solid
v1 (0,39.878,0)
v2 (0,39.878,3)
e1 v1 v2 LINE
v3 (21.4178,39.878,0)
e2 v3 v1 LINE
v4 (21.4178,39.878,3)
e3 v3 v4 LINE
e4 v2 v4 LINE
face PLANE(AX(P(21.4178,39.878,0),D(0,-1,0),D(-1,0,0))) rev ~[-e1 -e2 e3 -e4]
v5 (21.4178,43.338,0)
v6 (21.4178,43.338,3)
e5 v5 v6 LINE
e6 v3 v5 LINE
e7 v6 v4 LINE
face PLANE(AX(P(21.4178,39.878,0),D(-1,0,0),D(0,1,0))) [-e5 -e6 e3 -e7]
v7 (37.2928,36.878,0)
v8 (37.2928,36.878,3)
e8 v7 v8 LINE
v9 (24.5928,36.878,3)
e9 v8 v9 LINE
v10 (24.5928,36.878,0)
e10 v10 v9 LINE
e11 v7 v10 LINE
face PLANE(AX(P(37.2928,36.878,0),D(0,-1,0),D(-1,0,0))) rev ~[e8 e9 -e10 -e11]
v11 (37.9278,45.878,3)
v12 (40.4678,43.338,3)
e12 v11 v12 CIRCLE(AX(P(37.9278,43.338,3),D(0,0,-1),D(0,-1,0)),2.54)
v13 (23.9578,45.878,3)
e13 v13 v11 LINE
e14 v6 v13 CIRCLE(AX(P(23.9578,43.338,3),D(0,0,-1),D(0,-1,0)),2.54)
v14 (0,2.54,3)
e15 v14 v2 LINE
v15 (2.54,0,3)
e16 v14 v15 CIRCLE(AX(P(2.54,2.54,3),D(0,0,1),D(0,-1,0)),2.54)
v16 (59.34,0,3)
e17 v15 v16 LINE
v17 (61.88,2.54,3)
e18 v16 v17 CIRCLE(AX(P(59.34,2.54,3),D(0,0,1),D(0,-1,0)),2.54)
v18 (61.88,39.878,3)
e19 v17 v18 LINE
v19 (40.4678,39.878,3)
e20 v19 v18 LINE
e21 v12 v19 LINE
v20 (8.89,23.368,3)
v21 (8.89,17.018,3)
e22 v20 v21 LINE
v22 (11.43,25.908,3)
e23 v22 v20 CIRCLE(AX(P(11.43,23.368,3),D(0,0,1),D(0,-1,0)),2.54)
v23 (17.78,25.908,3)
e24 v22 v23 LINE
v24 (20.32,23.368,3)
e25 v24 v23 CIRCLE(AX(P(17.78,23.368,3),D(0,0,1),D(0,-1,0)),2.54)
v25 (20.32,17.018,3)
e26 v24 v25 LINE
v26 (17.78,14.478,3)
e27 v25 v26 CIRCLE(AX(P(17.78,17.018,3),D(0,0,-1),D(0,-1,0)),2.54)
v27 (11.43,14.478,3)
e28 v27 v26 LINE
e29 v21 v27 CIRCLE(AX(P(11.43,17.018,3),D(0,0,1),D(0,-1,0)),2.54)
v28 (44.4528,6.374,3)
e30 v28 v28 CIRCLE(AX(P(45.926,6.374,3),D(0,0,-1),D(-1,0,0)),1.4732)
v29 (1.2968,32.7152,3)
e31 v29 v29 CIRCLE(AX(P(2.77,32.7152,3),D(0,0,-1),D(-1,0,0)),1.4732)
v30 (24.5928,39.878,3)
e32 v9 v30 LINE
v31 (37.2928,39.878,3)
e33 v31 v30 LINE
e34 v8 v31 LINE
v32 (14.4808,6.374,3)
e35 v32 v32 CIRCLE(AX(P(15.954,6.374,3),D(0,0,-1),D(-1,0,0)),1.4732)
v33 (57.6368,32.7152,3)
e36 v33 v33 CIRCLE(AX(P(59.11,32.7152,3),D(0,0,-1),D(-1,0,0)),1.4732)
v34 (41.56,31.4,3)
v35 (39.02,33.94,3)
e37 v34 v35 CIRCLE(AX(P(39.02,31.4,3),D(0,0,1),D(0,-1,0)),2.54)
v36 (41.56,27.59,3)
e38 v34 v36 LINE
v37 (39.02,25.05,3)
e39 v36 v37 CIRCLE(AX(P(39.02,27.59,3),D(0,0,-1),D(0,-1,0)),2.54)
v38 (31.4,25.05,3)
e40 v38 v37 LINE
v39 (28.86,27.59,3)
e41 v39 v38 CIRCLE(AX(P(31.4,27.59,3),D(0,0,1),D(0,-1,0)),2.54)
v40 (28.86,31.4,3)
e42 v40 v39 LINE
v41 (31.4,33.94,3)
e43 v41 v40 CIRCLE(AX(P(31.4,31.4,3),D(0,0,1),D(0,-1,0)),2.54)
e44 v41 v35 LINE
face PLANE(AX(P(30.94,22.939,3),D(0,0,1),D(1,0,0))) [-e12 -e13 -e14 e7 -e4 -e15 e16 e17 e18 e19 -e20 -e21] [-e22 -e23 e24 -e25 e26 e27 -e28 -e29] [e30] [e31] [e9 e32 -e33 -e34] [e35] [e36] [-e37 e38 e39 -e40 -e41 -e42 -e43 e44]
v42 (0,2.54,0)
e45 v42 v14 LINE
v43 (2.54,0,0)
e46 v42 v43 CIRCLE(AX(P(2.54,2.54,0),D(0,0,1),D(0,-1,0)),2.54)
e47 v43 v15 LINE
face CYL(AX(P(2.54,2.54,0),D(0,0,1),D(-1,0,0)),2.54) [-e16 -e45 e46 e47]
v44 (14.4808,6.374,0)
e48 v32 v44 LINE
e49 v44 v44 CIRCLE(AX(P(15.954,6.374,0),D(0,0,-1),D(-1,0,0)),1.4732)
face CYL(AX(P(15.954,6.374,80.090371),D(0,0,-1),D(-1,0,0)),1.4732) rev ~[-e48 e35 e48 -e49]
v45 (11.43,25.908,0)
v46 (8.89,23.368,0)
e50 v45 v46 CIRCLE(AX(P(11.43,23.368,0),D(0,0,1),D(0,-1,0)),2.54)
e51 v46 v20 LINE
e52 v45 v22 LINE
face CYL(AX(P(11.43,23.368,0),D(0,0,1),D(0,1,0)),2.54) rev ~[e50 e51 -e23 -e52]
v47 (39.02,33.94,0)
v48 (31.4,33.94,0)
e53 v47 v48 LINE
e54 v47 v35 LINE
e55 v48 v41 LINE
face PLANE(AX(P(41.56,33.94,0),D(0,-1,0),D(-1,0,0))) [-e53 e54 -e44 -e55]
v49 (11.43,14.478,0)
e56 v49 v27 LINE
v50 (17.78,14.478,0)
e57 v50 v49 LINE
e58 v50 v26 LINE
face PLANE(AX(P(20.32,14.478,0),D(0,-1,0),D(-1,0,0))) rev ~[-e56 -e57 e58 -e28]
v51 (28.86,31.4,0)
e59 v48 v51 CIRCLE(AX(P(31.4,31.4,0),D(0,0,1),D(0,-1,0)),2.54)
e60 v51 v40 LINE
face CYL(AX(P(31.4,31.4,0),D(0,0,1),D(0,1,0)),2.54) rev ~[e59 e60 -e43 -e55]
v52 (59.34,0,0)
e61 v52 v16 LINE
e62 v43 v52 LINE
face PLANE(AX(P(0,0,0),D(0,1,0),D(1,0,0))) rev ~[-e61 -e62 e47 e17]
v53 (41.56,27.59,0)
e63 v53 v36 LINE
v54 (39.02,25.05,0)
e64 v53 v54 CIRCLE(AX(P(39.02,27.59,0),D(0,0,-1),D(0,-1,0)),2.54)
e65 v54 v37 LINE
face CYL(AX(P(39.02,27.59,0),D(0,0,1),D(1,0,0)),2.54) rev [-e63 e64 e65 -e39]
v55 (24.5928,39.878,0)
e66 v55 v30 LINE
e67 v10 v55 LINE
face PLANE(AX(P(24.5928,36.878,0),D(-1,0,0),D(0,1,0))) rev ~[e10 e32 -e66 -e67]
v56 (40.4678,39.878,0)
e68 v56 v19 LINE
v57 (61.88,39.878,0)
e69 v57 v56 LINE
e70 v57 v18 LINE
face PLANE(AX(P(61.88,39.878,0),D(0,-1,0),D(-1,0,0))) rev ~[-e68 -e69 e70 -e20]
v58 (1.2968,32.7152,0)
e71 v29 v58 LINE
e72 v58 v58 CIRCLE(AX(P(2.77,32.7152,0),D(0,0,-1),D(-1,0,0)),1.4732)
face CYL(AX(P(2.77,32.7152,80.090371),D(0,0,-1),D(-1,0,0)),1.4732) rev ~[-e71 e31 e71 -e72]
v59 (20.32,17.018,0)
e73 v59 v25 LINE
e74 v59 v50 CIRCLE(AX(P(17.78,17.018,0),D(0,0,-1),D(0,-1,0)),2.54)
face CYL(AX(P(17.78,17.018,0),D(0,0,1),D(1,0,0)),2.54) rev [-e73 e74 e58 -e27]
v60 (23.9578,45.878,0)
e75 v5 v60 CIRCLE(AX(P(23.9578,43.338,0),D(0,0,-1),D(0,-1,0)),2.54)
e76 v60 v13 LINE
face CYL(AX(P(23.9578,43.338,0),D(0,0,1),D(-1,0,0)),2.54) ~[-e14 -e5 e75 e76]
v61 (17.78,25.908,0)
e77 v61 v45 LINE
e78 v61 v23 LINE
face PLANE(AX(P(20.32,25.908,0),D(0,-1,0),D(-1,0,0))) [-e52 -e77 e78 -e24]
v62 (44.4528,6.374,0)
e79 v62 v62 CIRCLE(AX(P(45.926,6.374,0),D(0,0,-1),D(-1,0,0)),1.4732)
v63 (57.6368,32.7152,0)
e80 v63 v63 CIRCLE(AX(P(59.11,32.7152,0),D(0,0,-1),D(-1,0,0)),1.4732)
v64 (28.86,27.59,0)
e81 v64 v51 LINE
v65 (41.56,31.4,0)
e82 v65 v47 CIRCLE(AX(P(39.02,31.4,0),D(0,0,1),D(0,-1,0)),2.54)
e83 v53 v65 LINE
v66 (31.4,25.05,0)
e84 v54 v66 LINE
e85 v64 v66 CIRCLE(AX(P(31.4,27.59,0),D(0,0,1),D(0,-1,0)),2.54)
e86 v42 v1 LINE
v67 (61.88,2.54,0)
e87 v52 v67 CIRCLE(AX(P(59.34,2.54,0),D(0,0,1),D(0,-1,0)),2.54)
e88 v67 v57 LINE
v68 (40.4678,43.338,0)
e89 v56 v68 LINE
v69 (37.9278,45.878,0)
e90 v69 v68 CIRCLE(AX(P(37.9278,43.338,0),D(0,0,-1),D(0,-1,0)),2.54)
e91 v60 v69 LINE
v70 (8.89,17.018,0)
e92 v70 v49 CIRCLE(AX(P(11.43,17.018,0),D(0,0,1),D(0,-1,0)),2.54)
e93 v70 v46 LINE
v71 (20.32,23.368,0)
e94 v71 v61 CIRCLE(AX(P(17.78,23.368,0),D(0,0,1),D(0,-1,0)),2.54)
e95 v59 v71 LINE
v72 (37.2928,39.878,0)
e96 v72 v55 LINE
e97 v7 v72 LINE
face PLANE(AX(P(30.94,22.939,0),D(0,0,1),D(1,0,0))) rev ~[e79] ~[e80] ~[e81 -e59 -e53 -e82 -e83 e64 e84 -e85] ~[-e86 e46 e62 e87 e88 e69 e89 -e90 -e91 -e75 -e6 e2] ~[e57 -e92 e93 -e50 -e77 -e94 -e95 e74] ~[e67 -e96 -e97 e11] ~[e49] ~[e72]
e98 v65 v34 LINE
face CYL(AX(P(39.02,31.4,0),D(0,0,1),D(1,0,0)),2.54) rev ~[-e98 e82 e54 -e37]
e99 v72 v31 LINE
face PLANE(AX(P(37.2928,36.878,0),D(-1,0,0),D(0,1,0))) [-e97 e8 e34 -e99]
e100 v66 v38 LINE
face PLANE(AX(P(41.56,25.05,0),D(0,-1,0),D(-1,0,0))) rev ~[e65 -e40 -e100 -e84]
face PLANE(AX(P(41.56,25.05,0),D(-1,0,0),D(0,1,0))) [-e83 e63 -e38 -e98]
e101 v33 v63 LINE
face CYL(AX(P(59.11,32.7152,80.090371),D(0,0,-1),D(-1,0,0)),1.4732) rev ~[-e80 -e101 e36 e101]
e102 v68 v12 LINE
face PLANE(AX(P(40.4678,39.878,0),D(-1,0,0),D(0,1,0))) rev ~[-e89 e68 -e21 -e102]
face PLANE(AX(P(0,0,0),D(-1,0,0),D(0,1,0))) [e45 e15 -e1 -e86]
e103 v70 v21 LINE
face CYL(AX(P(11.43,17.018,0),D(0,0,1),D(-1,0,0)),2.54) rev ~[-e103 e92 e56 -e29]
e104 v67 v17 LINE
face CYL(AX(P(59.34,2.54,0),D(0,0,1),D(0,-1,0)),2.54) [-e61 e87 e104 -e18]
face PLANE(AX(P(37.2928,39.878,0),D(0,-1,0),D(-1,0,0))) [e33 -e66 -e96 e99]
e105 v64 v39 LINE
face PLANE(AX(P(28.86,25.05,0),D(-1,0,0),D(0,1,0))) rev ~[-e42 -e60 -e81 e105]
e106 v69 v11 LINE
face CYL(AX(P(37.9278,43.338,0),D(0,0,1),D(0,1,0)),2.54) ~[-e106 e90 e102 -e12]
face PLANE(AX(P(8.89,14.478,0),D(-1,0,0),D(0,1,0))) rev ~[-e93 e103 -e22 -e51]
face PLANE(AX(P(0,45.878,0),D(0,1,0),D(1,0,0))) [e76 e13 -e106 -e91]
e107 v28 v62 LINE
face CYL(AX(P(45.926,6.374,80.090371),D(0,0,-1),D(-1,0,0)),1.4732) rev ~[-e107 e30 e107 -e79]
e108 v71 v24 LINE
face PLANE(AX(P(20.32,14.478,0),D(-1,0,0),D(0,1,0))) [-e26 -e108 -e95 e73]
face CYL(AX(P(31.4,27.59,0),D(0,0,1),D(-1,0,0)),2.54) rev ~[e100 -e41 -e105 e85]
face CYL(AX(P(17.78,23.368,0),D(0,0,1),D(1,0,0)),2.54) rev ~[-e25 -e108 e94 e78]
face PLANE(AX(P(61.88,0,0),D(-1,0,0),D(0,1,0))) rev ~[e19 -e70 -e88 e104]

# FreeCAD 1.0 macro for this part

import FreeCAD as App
import Part
import Sketcher
Q = App.Units.Quantity


def edges_at(feature, points):
    """Names of the edges that pass closest to the given points."""
    edges = feature.Shape.Edges
    near = lambda p: min(range(len(edges)), key=lambda i: edges[i].distToShape(Part.Vertex(*p))[0])
    return sorted({f"Edge{near(p) + 1}" for p in points})

doc = App.newDocument("Part")
body = doc.addObject("PartDesign::Body", "Body")

sketch1 = body.newObject("Sketcher::SketchObject", "Sketch")
sketch1.AttachmentSupport = (doc.getObject("XY_Plane"), [""])
sketch1.MapMode = "FlatFace"
sketch1.addGeometry([
    Part.LineSegment(App.Vector(0, 45.878, 0), App.Vector(0, 0, 0)),
    Part.LineSegment(App.Vector(0, 0, 0), App.Vector(61.88, 0, 0)),
    Part.LineSegment(App.Vector(61.88, 0, 0), App.Vector(61.88, 45.878, 0)),
    Part.LineSegment(App.Vector(61.88, 45.878, 0), App.Vector(0, 45.878, 0)),
], False)
sketch1.addConstraint([
    Sketcher.Constraint("Coincident", 0, 2, 1, 1),
    Sketcher.Constraint("Coincident", 1, 2, 2, 1),
    Sketcher.Constraint("Coincident", 2, 2, 3, 1),
    Sketcher.Constraint("Coincident", 3, 2, 0, 1),
    Sketcher.Constraint("Vertical", 0),
    Sketcher.Constraint("Horizontal", 1),
    Sketcher.Constraint("Vertical", 2),
    Sketcher.Constraint("Horizontal", 3),
    Sketcher.Constraint("Coincident", 0, 2, -1, 1),
    Sketcher.Constraint("DistanceX", 1, 1, 1, 2, 61.88),
    Sketcher.Constraint("DistanceY", 0, 2, 0, 1, 45.878),
])
pad1 = body.newObject("PartDesign::Pad", "Pad")
pad1.Profile = sketch1
pad1.Length = 3

sketch2 = body.newObject("Sketcher::SketchObject", "Sketch001")
sketch2.AttachmentSupport = (doc.getObject("XY_Plane"), [""])
sketch2.MapMode = "FlatFace"
sketch2.AttachmentOffset = App.Placement(App.Vector(0, 0, 3), App.Rotation())
sketch2.addGeometry([
    Part.Circle(App.Vector(15.954, 6.374, 0), App.Vector(0, 0, 1), 1.4732),
    Part.Circle(App.Vector(45.926, 6.374, 0), App.Vector(0, 0, 1), 1.4732),
    Part.Circle(App.Vector(59.11, 32.7152, 0), App.Vector(0, 0, 1), 1.4732),
    Part.Circle(App.Vector(2.77, 32.7152, 0), App.Vector(0, 0, 1), 1.4732),
], False)
sketch2.addConstraint([
    Sketcher.Constraint("Equal", 0, 1),
    Sketcher.Constraint("Equal", 1, 2),
    Sketcher.Constraint("Equal", 2, 3),
    Sketcher.Constraint("Horizontal", 0, 3, 1, 3),
    Sketcher.Constraint("Horizontal", 2, 3, 3, 3),
    Sketcher.Constraint("Diameter", 0, Q("0.116 in")),
    Sketcher.Constraint("DistanceX", 0, 3, 1, 3, Q("1.18 in")),
    Sketcher.Constraint("DistanceY", -1, 1, 2, 3, Q("1.288 in")),
    Sketcher.Constraint("DistanceX", -1, 1, 0, 3, 15.954),
    Sketcher.Constraint("DistanceY", -1, 1, 0, 3, 6.374),
    Sketcher.Constraint("DistanceX", -1, 1, 2, 3, 59.11),
    Sketcher.Constraint("DistanceX", -1, 1, 3, 3, 2.77),
])
doc.recompute()
hole = body.newObject("PartDesign::Hole", "Hole")
hole.Profile = sketch2
hole.ThreadType = "None"
hole.Diameter = Q("0.116 in")
hole.DepthType = "ThroughAll"
doc.recompute()

fillet = body.newObject("PartDesign::Fillet", "Fillet")
fillet.Base = (hole, edges_at(hole, [(61.88, 0, 1.5), (0, 0, 1.5)]))
fillet.Radius = Q("0.1 in")

sketch3 = body.newObject("Sketcher::SketchObject", "Sketch002")
sketch3.AttachmentSupport = (doc.getObject("XY_Plane"), [""])
sketch3.MapMode = "FlatFace"
sketch3.addGeometry([
    Part.LineSegment(App.Vector(37.2928, 39.878, 0), App.Vector(37.2928, 36.878, 0)),
    Part.LineSegment(App.Vector(37.2928, 36.878, 0), App.Vector(24.5928, 36.878, 0)),
    Part.LineSegment(App.Vector(24.5928, 36.878, 0), App.Vector(24.5928, 39.878, 0)),
    Part.LineSegment(App.Vector(24.5928, 39.878, 0), App.Vector(37.2928, 39.878, 0)),
], False)
sketch3.addConstraint([
    Sketcher.Constraint("Coincident", 0, 2, 1, 1),
    Sketcher.Constraint("Coincident", 1, 2, 2, 1),
    Sketcher.Constraint("Coincident", 2, 2, 3, 1),
    Sketcher.Constraint("Coincident", 3, 2, 0, 1),
    Sketcher.Constraint("Vertical", 0),
    Sketcher.Constraint("Horizontal", 1),
    Sketcher.Constraint("Vertical", 2),
    Sketcher.Constraint("Horizontal", 3),
    Sketcher.Constraint("DistanceX", 1, 2, 1, 1, Q("0.5 in")),
    Sketcher.Constraint("DistanceY", -1, 1, 2, 2, Q("1.57 in")),
    Sketcher.Constraint("DistanceY", 0, 2, 0, 1, 3.0),
    Sketcher.Constraint("DistanceX", -1, 1, 0, 2, 37.2928),
])
pocket1 = body.newObject("PartDesign::Pocket", "Pocket")
pocket1.Profile = sketch3
pocket1.Length = 3
pocket1.Reversed = True

sketch4 = body.newObject("Sketcher::SketchObject", "Sketch003")
sketch4.AttachmentSupport = (doc.getObject("XY_Plane"), [""])
sketch4.MapMode = "FlatFace"
sketch4.addGeometry([
    Part.LineSegment(App.Vector(41.56, 33.94, 0), App.Vector(41.56, 25.05, 0)),
    Part.LineSegment(App.Vector(41.56, 25.05, 0), App.Vector(28.86, 25.05, 0)),
    Part.LineSegment(App.Vector(28.86, 25.05, 0), App.Vector(28.86, 33.94, 0)),
    Part.LineSegment(App.Vector(28.86, 33.94, 0), App.Vector(41.56, 33.94, 0)),
    Part.LineSegment(App.Vector(20.32, 25.908, 0), App.Vector(20.32, 14.478, 0)),
    Part.LineSegment(App.Vector(20.32, 14.478, 0), App.Vector(8.89, 14.478, 0)),
    Part.LineSegment(App.Vector(8.89, 14.478, 0), App.Vector(8.89, 25.908, 0)),
    Part.LineSegment(App.Vector(8.89, 25.908, 0), App.Vector(20.32, 25.908, 0)),
], False)
sketch4.addConstraint([
    Sketcher.Constraint("Coincident", 0, 2, 1, 1),
    Sketcher.Constraint("Coincident", 1, 2, 2, 1),
    Sketcher.Constraint("Coincident", 2, 2, 3, 1),
    Sketcher.Constraint("Coincident", 3, 2, 0, 1),
    Sketcher.Constraint("Coincident", 4, 2, 5, 1),
    Sketcher.Constraint("Coincident", 5, 2, 6, 1),
    Sketcher.Constraint("Coincident", 6, 2, 7, 1),
    Sketcher.Constraint("Coincident", 7, 2, 4, 1),
    Sketcher.Constraint("Vertical", 0),
    Sketcher.Constraint("Horizontal", 1),
    Sketcher.Constraint("Vertical", 2),
    Sketcher.Constraint("Horizontal", 3),
    Sketcher.Constraint("Vertical", 4),
    Sketcher.Constraint("Horizontal", 5),
    Sketcher.Constraint("Vertical", 6),
    Sketcher.Constraint("Horizontal", 7),
    Sketcher.Constraint("Equal", 7, 4),
    Sketcher.Constraint("DistanceX", 1, 2, 1, 1, Q("0.5 in")),
    Sketcher.Constraint("DistanceX", 5, 2, 5, 1, Q("0.45 in")),
    Sketcher.Constraint("DistanceY", 0, 2, 0, 1, Q("0.35 in")),
    Sketcher.Constraint("DistanceX", -1, 1, 4, 2, Q("0.8 in")),
    Sketcher.Constraint("DistanceY", -1, 1, 4, 2, Q("0.57 in")),
    Sketcher.Constraint("DistanceX", -1, 1, 0, 2, 41.56),
    Sketcher.Constraint("DistanceY", -1, 1, 0, 2, 25.05),
])
pocket2 = body.newObject("PartDesign::Pocket", "Pocket001")
pocket2.Profile = sketch4
pocket2.Type = "ThroughAll"
pocket2.Reversed = True
doc.recompute()

fillet2 = body.newObject("PartDesign::Fillet", "Fillet001")
fillet2.Base = (pocket2, edges_at(pocket2, [
    (41.56, 25.05, 1.5),
    (41.56, 33.94, 1.5),
    (28.86, 33.94, 1.5),
    (28.86, 25.05, 1.5),
    (20.32, 14.478, 1.5),
    (20.32, 25.908, 1.5),
    (8.89, 25.908, 1.5),
    (8.89, 14.478, 1.5),
]))
fillet2.Radius = Q("0.1 in")

sketch5 = body.newObject("Sketcher::SketchObject", "Sketch004")
sketch5.AttachmentSupport = (doc.getObject("XY_Plane"), [""])
sketch5.MapMode = "FlatFace"
sketch5.addGeometry([
    Part.LineSegment(App.Vector(61.88, 45.878, 0), App.Vector(61.88, 39.878, 0)),
    Part.LineSegment(App.Vector(61.88, 39.878, 0), App.Vector(40.4678, 39.878, 0)),
    Part.LineSegment(App.Vector(40.4678, 39.878, 0), App.Vector(40.4678, 45.878, 0)),
    Part.LineSegment(App.Vector(40.4678, 45.878, 0), App.Vector(61.88, 45.878, 0)),
    Part.LineSegment(App.Vector(21.4178, 45.878, 0), App.Vector(21.4178, 39.878, 0)),
    Part.LineSegment(App.Vector(21.4178, 39.878, 0), App.Vector(0, 39.878, 0)),
    Part.LineSegment(App.Vector(0, 39.878, 0), App.Vector(0, 45.878, 0)),
    Part.LineSegment(App.Vector(0, 45.878, 0), App.Vector(21.4178, 45.878, 0)),
], False)
sketch5.addConstraint([
    Sketcher.Constraint("Coincident", 0, 2, 1, 1),
    Sketcher.Constraint("Coincident", 1, 2, 2, 1),
    Sketcher.Constraint("Coincident", 2, 2, 3, 1),
    Sketcher.Constraint("Coincident", 3, 2, 0, 1),
    Sketcher.Constraint("Coincident", 4, 2, 5, 1),
    Sketcher.Constraint("Coincident", 5, 2, 6, 1),
    Sketcher.Constraint("Coincident", 6, 2, 7, 1),
    Sketcher.Constraint("Coincident", 7, 2, 4, 1),
    Sketcher.Constraint("Vertical", 0),
    Sketcher.Constraint("Horizontal", 1),
    Sketcher.Constraint("Vertical", 2),
    Sketcher.Constraint("Horizontal", 3),
    Sketcher.Constraint("Vertical", 4),
    Sketcher.Constraint("Horizontal", 5),
    Sketcher.Constraint("Vertical", 6),
    Sketcher.Constraint("Horizontal", 7),
    Sketcher.Constraint("PointOnObject", 5, 2, -2),
    Sketcher.Constraint("Horizontal", 1, 2, 4, 2),
    Sketcher.Constraint("Horizontal", 3, 2, 6, 2),
    Sketcher.Constraint("DistanceX", 1, 2, 1, 1, Q("0.843 in")),
    Sketcher.Constraint("DistanceY", -1, 1, 0, 2, Q("1.57 in")),
    Sketcher.Constraint("DistanceX", 4, 2, 1, 2, Q("0.75 in")),
    Sketcher.Constraint("DistanceX", 5, 2, 5, 1, 21.4178),
    Sketcher.Constraint("DistanceY", 0, 2, 0, 1, 6.0),
])
pocket3 = body.newObject("PartDesign::Pocket", "Pocket002")
pocket3.Profile = sketch5
pocket3.Type = "ThroughAll"
pocket3.Reversed = True
doc.recompute()

fillet3 = body.newObject("PartDesign::Fillet", "Fillet002")
fillet3.Base = (pocket3, edges_at(pocket3, [(40.468, 45.878, 1.5), (21.418, 45.878, 1.5)]))
fillet3.Radius = Q("0.1 in")

doc.recompute()
